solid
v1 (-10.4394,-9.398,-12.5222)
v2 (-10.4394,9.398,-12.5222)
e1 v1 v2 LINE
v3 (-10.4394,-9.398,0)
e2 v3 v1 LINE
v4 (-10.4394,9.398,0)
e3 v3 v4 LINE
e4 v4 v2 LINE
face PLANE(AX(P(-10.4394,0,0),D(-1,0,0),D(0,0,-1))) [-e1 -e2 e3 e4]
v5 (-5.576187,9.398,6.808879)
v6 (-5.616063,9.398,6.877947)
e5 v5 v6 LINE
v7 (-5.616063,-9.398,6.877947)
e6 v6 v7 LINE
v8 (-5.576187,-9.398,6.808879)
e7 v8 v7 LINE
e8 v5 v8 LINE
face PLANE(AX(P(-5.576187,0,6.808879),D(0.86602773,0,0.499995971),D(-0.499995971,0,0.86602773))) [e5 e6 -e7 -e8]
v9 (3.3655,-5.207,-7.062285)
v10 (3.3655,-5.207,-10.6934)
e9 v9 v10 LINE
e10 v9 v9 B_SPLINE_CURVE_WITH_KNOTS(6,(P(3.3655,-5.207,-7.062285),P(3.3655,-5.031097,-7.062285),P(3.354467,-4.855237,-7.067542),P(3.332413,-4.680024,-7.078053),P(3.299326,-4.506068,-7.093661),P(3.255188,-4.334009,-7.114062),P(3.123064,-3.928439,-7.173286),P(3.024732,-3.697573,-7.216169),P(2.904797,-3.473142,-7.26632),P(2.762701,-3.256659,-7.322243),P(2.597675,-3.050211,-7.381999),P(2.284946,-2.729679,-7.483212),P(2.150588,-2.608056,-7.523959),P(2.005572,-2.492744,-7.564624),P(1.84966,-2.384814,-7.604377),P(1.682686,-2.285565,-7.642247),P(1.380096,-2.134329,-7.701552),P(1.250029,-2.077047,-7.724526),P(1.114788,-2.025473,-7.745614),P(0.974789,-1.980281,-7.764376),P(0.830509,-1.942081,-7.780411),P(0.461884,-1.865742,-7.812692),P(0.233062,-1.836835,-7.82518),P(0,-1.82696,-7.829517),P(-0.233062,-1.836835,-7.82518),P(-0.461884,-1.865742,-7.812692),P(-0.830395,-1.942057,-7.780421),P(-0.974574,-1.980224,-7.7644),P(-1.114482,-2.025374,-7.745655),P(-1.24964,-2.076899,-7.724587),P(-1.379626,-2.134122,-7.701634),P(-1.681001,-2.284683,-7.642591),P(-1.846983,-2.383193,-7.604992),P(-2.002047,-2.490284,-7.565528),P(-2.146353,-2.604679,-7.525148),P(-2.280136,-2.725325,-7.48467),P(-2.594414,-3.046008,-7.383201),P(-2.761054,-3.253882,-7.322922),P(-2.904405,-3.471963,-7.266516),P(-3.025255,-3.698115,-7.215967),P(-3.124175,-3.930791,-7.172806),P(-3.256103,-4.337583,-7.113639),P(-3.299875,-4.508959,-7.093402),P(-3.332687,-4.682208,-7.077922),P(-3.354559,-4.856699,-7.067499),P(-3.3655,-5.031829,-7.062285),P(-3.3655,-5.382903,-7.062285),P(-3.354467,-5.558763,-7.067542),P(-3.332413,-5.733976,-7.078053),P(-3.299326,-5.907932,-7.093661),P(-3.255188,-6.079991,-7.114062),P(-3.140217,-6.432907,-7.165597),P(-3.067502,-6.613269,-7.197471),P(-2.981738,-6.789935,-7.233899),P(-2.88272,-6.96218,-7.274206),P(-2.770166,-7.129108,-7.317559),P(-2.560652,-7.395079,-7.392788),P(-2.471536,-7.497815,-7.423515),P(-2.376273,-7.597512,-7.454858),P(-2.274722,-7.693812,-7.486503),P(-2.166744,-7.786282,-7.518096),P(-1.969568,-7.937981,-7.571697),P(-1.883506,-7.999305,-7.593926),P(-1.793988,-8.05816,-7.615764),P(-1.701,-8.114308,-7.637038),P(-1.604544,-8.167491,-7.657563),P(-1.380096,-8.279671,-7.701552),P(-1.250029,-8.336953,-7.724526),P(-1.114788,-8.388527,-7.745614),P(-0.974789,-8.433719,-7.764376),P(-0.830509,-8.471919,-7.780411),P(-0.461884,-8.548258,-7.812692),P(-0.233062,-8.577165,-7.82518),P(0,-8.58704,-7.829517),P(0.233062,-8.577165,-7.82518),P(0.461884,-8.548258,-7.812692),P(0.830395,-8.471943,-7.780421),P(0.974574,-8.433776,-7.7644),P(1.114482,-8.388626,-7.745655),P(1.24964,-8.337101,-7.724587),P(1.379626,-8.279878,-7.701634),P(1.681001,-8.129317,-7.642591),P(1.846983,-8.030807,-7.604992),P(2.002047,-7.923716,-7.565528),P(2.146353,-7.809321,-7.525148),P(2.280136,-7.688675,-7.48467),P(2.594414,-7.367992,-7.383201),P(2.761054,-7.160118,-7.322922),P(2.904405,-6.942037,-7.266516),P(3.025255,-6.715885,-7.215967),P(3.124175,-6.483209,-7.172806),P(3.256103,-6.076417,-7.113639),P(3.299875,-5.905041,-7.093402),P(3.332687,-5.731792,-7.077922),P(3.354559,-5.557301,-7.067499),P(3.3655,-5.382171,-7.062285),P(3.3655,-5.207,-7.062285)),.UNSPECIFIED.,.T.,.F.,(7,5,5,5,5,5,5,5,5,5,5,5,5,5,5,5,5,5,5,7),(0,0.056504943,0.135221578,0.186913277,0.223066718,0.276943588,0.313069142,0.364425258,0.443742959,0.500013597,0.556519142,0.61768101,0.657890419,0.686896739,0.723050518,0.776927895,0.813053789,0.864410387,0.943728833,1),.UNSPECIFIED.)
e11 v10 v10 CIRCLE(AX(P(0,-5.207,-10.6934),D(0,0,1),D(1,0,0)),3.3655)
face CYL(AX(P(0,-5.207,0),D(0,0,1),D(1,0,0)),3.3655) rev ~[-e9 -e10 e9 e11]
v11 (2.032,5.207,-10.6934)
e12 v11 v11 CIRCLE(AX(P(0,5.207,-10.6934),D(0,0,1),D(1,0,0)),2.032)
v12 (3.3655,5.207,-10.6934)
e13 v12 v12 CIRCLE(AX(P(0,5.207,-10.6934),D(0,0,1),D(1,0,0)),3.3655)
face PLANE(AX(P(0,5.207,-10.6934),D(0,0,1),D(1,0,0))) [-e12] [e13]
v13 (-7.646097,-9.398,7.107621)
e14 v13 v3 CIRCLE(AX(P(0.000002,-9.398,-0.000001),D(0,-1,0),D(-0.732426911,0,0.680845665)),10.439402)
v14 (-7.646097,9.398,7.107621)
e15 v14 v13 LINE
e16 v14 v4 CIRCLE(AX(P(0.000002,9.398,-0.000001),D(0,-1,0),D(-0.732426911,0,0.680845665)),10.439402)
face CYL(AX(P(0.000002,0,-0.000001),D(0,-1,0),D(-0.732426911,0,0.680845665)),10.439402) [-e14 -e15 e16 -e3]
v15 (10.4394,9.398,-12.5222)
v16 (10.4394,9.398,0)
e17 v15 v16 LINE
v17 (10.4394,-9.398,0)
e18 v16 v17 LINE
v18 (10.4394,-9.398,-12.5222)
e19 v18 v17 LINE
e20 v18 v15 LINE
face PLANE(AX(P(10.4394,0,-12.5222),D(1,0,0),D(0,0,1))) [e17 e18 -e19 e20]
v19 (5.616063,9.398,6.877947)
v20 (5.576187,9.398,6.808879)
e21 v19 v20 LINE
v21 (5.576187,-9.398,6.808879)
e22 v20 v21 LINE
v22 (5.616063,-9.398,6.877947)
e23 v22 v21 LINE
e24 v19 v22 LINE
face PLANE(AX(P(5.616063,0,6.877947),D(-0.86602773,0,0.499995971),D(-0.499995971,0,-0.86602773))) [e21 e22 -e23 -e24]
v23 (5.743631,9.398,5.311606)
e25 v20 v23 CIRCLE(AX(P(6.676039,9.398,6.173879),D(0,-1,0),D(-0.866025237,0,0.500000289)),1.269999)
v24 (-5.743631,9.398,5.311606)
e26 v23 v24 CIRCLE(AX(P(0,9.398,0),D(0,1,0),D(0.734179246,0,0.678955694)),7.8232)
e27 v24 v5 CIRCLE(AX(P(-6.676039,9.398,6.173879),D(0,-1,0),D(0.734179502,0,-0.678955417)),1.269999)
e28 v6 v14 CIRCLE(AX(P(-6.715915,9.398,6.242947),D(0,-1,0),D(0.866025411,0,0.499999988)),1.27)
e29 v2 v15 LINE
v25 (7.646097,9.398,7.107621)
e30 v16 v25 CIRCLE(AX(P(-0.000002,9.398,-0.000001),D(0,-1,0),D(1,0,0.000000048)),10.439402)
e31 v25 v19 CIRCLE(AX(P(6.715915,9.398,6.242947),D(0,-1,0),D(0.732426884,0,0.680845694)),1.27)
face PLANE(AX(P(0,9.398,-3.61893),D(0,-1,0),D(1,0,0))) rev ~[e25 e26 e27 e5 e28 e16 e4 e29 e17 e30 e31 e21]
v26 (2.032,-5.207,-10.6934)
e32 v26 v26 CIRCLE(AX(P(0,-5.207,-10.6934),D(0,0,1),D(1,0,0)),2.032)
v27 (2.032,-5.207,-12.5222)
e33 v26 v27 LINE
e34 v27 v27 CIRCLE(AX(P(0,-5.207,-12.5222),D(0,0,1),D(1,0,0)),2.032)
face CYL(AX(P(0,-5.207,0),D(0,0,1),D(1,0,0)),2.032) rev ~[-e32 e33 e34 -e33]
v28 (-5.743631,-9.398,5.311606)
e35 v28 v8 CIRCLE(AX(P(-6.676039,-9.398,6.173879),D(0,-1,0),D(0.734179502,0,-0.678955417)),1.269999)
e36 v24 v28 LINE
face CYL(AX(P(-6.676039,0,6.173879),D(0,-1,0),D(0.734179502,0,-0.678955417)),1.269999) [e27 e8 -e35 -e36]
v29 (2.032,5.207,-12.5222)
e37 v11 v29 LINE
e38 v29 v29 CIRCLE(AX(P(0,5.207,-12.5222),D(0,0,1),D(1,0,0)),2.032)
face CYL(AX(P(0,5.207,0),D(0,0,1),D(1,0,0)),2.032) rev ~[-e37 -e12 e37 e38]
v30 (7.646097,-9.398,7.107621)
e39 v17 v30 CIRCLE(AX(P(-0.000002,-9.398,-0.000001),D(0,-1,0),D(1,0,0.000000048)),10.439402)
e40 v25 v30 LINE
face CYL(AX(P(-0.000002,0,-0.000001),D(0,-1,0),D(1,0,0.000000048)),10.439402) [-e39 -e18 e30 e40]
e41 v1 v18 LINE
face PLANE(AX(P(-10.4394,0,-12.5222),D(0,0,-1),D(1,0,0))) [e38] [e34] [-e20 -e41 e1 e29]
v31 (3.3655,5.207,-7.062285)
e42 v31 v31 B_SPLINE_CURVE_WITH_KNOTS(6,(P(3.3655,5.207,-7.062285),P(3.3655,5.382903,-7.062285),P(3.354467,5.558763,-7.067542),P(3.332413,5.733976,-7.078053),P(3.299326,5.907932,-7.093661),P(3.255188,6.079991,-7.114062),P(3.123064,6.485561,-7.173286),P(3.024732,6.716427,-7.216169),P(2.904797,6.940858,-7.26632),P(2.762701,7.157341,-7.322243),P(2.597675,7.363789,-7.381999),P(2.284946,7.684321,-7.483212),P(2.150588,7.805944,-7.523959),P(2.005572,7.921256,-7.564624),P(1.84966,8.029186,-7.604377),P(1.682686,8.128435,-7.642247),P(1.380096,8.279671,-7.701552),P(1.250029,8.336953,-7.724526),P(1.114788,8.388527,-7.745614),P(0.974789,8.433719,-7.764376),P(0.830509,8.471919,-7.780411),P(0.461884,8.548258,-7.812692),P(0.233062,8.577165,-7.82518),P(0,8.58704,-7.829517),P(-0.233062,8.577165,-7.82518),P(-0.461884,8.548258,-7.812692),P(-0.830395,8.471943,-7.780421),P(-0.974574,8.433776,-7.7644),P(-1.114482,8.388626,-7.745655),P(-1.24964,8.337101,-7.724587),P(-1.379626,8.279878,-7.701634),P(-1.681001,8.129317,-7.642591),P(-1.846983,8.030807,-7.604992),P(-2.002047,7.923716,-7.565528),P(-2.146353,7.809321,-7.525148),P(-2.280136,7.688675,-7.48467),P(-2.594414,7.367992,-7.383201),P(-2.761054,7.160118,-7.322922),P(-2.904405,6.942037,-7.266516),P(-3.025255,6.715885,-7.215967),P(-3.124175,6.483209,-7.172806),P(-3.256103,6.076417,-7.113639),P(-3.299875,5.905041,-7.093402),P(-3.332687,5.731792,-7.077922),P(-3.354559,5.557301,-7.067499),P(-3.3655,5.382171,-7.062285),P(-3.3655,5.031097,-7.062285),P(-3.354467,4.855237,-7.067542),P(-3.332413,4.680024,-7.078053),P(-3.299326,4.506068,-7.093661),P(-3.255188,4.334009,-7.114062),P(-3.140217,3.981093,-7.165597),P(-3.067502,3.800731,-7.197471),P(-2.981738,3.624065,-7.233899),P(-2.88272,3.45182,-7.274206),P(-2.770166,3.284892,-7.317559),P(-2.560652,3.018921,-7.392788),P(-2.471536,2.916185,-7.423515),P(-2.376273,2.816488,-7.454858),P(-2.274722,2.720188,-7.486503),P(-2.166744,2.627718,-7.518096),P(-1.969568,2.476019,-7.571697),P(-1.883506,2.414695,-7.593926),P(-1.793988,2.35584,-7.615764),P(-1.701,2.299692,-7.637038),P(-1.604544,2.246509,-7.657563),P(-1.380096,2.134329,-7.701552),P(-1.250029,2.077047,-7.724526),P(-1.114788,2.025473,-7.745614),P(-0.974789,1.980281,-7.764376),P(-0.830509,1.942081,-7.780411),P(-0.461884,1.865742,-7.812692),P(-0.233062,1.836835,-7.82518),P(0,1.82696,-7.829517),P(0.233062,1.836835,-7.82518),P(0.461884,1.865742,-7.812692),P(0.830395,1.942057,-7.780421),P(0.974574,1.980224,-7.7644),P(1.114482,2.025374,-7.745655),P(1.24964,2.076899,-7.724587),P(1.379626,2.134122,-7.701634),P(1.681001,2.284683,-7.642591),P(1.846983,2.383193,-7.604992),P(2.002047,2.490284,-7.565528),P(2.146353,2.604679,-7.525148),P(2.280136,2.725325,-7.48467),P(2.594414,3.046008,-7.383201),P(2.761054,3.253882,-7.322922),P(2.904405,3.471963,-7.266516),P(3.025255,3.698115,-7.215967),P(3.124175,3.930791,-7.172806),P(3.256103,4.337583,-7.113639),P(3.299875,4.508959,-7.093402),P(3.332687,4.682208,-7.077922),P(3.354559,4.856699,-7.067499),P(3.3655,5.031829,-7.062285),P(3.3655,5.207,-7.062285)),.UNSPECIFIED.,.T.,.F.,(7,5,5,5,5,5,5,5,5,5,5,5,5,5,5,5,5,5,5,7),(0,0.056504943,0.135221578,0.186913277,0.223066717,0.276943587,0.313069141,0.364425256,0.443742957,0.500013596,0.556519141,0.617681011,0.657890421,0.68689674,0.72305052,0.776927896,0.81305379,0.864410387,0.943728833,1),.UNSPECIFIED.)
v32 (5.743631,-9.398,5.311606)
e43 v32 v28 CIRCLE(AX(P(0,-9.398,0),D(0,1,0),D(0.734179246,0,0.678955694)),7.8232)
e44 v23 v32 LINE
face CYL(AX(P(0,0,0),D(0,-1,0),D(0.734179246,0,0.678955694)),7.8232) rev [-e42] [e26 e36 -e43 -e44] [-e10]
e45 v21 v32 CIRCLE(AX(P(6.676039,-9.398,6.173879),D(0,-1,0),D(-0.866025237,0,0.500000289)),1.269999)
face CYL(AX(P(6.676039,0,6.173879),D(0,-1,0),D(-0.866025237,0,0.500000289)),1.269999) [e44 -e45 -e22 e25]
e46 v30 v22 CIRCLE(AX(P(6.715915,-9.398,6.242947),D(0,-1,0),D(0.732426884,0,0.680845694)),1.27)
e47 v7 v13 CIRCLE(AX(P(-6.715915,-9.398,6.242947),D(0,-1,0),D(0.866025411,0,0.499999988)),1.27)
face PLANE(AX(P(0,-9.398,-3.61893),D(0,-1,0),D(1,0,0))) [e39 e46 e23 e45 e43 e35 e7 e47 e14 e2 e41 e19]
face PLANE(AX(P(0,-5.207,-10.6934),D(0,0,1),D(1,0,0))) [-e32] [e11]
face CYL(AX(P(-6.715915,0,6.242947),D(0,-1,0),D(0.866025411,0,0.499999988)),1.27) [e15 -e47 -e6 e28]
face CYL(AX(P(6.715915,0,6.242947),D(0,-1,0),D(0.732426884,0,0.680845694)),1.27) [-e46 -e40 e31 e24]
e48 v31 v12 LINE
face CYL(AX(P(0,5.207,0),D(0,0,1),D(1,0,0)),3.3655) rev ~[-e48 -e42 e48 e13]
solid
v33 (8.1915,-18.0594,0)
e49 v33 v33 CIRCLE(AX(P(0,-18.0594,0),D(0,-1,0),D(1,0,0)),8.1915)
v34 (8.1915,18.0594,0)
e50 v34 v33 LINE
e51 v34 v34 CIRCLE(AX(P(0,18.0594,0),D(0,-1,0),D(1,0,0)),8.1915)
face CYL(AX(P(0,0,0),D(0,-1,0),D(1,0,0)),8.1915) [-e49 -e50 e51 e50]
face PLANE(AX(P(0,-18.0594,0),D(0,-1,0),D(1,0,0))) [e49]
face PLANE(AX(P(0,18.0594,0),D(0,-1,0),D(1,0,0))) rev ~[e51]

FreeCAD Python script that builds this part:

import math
import FreeCAD as App
import Part
import Sketcher
from FreeCAD import Vector
Q = App.Units.Quantity

doc = App.newDocument("Part")
body = doc.addObject("PartDesign::Body", "Body")

sketch1 = body.newObject("Sketcher::SketchObject", "Sketch")
sketch1.AttachmentSupport = (doc.getObject("XZ_Plane"), [""])
sketch1.MapMode = "FlatFace"
sketch1.addGeometry([
    Part.LineSegment(Vector(10.4394, -12.5222, 0), Vector(10.4394, 0, 0)),
    Part.ArcOfCircle(Part.Circle(Vector(-0.000002, -0.000001, 0), Vector(0, 0, 1), 10.439402), math.radians(0.000003), math.radians(42.909762)),
    Part.ArcOfCircle(Part.Circle(Vector(6.715915, 6.242947, 0), Vector(0, 0, 1), 1.27), math.radians(42.909764), math.radians(150.000001)),
    Part.LineSegment(Vector(5.616063, 6.877947, 0), Vector(5.576187, 6.808879, 0)),
    Part.ArcOfCircle(Part.Circle(Vector(6.676039, 6.173879, 0), Vector(0, 0, 1), 1.269999), math.radians(149.999981), math.radians(222.76207)),
    Part.ArcOfCircle(Part.Circle(Vector(0, 0, 0), Vector(0, 0, 1), 7.8232), math.radians(137.237909), math.radians(402.762091)),
    Part.ArcOfCircle(Part.Circle(Vector(-6.676039, 6.173879, 0), Vector(0, 0, 1), 1.269999), math.radians(-42.76207), math.radians(30.000019)),
    Part.LineSegment(Vector(-5.576187, 6.808879, 0), Vector(-5.616063, 6.877947, 0)),
    Part.ArcOfCircle(Part.Circle(Vector(-6.715915, 6.242947, 0), Vector(0, 0, 1), 1.27), math.radians(29.999999), math.radians(137.090236)),
    Part.ArcOfCircle(Part.Circle(Vector(0.000002, -0.000001, 0), Vector(0, 0, 1), 10.439402), math.radians(137.090238), math.radians(179.999997)),
    Part.LineSegment(Vector(-10.4394, 0, 0), Vector(-10.4394, -12.5222, 0)),
    Part.LineSegment(Vector(-10.4394, -12.5222, 0), Vector(10.4394, -12.5222, 0)),
], False)
sketch1.addConstraint([
    Sketcher.Constraint("Tangent", 0, 2, 1, 1),
    Sketcher.Constraint("Tangent", 1, 2, 2, 1),
    Sketcher.Constraint("Coincident", 2, 2, 3, 1),
    Sketcher.Constraint("Coincident", 3, 2, 4, 1),
    Sketcher.Constraint("Tangent", 4, 2, 5, 2),
    Sketcher.Constraint("Tangent", 5, 1, 6, 1),
    Sketcher.Constraint("Coincident", 6, 2, 7, 1),
    Sketcher.Constraint("Coincident", 7, 2, 8, 1),
    Sketcher.Constraint("Tangent", 8, 2, 9, 1),
    Sketcher.Constraint("Tangent", 9, 2, 10, 1),
    Sketcher.Constraint("Coincident", 10, 2, 11, 1),
    Sketcher.Constraint("Coincident", 11, 2, 0, 1),
    Sketcher.Constraint("Vertical", 0),
    Sketcher.Constraint("Vertical", 10),
    Sketcher.Constraint("Horizontal", 11),
    Sketcher.Constraint("Coincident", 1, 3, -1, 1),
    Sketcher.Constraint("Coincident", 5, 3, -1, 1),
    Sketcher.Constraint("Coincident", 9, 3, -1, 1),
    Sketcher.Constraint("Equal", 2, 4),
    Sketcher.Constraint("Equal", 4, 6),
    Sketcher.Constraint("Equal", 6, 8),
    Sketcher.Constraint("Equal", 1, 9),
    Sketcher.Constraint("Symmetric", 3, 2, 6, 2, -2),
    Sketcher.Constraint("Symmetric", 2, 2, 7, 2, -2),
    Sketcher.Constraint("Radius", 2, Q("0.05 in")),
    Sketcher.Constraint("Radius", 1, Q("0.4110001 in")),
    Sketcher.Constraint("Radius", 5, Q("0.308 in")),
    Sketcher.Constraint("DistanceY", 0, 1, 0, 2, Q("0.493 in")),
    Sketcher.Constraint("DistanceY", 2, 3, 2, 2, Q("0.025 in")),
    Sketcher.Constraint("DistanceY", 4, 3, 3, 2, Q("0.025 in")),
    Sketcher.Constraint("DistanceX", -1, 1, 4, 3, Q("6.676039 mm")),
    Sketcher.Constraint("DistanceY", -1, 1, 1, 2, Q("7.107621 mm")),
])
pad1 = body.newObject("PartDesign::Pad", "Pad")
pad1.Profile = sketch1
pad1.Length = Q("0.74 in")
pad1.Midplane = True

sketch2 = body.newObject("Sketcher::SketchObject", "Sketch001")
sketch2.AttachmentSupport = (doc.getObject("XY_Plane"), [""])
sketch2.MapMode = "FlatFace"
sketch2.addGeometry([
    Part.Circle(Vector(0, 5.207, 0), Vector(0, 0, 1), 2.032),
    Part.Circle(Vector(0, -5.207, 0), Vector(0, 0, 1), 2.032),
], False)
sketch2.addConstraint([
    Sketcher.Constraint("Equal", 0, 1),
    Sketcher.Constraint("Symmetric", 0, 3, 1, 3, -1, 1),
    Sketcher.Constraint("PointOnObject", 0, 3, -2),
    Sketcher.Constraint("Diameter", 0, Q("0.16 in")),
    Sketcher.Constraint("DistanceY", 1, 3, 0, 3, Q("0.41 in")),
])
pocket1 = body.newObject("PartDesign::Pocket", "Pocket")
pocket1.Profile = sketch2
pocket1.Type = "ThroughAll"

sketch3 = body.newObject("Sketcher::SketchObject", "Sketch002")
sketch3.AttachmentSupport = (doc.getObject("XY_Plane"), [""])
sketch3.MapMode = "FlatFace"
sketch3.addGeometry([
    Part.Circle(Vector(0, 5.207, 0), Vector(0, 0, 1), 3.3655),
    Part.Circle(Vector(0, -5.207, 0), Vector(0, 0, 1), 3.3655),
], False)
sketch3.addConstraint([
    Sketcher.Constraint("Equal", 0, 1),
    Sketcher.Constraint("Symmetric", 0, 3, 1, 3, -1, 1),
    Sketcher.Constraint("PointOnObject", 0, 3, -2),
    Sketcher.Constraint("Diameter", 0, Q("0.265 in")),
    Sketcher.Constraint("DistanceY", 1, 3, 0, 3, Q("0.41 in")),
])
pocket2 = body.newObject("PartDesign::Pocket", "Pocket001")
pocket2.Profile = sketch3
pocket2.Length = Q("0.421 in")
body2 = doc.addObject("PartDesign::Body", "Body001")

sketch4 = body2.newObject("Sketcher::SketchObject", "Sketch003")
sketch4.AttachmentSupport = (doc.getObject("XZ_Plane001"), [""])
sketch4.MapMode = "FlatFace"
sketch4.addGeometry(Part.Circle(Vector(0, 0, 0), Vector(0, 0, 1), 8.1915), False)
sketch4.addConstraint([
    Sketcher.Constraint("Coincident", 0, 3, -1, 1),
    Sketcher.Constraint("Diameter", 0, Q("0.645 in")),
])
pad2 = body2.newObject("PartDesign::Pad", "Pad001")
pad2.Profile = sketch4
pad2.Length = Q("1.422 in")
pad2.Midplane = True
body3 = doc.addObject("PartDesign::Body", "Body002")

sketch5 = body3.newObject("Sketcher::SketchObject", "Sketch004")
sketch5.AttachmentSupport = (doc.getObject("XZ_Plane002"), [""])
sketch5.MapMode = "FlatFace"
sketch5.addGeometry([
    Part.LineSegment(Vector(-32.175, 50.356693, 0), Vector(-32.175, 15.006693, 0)),
    Part.LineSegment(Vector(-32.175, 15.006693, 0), Vector(3.175, 15.006693, 0)),
    Part.LineSegment(Vector(3.175, 15.006693, 0), Vector(3.175, 50.356693, 0)),
    Part.LineSegment(Vector(3.175, 50.356693, 0), Vector(-32.175, 50.356693, 0)),
    Part.Circle(Vector(-29, 18.181693, 0), Vector(0, 0, 1), 1.7145),
    Part.Circle(Vector(0, 18.181693, 0), Vector(0, 0, 1), 1.7145),
    Part.Circle(Vector(-29, 47.181693, 0), Vector(0, 0, 1), 1.7145),
    Part.Circle(Vector(0, 47.181693, 0), Vector(0, 0, 1), 1.7145),
], False)
sketch5.addConstraint([
    Sketcher.Constraint("Coincident", 0, 2, 1, 1),
    Sketcher.Constraint("Coincident", 1, 2, 2, 1),
    Sketcher.Constraint("Coincident", 2, 2, 3, 1),
    Sketcher.Constraint("Coincident", 3, 2, 0, 1),
    Sketcher.Constraint("Vertical", 0),
    Sketcher.Constraint("Horizontal", 1),
    Sketcher.Constraint("Vertical", 2),
    Sketcher.Constraint("Horizontal", 3),
    Sketcher.Constraint("Equal", 4, 5),
    Sketcher.Constraint("Equal", 5, 6),
    Sketcher.Constraint("Equal", 6, 7),
    Sketcher.Constraint("PointOnObject", 5, 3, -2),
    Sketcher.Constraint("PointOnObject", 7, 3, -2),
    Sketcher.Constraint("Horizontal", 4, 3, 5, 3),
    Sketcher.Constraint("Horizontal", 6, 3, 7, 3),
    Sketcher.Constraint("Vertical", 4, 3, 6, 3),
    Sketcher.Constraint("Equal", 3, 0),
    Sketcher.Constraint("Diameter", 4, Q("0.135 in")),
    Sketcher.Constraint("DistanceX", -1, 1, 1, 2, Q("0.125 in")),
    Sketcher.Constraint("DistanceX", 0, 2, 4, 3, Q("0.125 in")),
    Sketcher.Constraint("DistanceY", 0, 2, 4, 3, Q("0.125 in")),
    Sketcher.Constraint("DistanceY", 7, 3, 2, 2, Q("0.125 in")),
    Sketcher.Constraint("DistanceX", 1, 1, 1, 2, Q("35.35 mm")),
    Sketcher.Constraint("DistanceY", -1, 1, 4, 3, Q("18.181693 mm")),
])
pad3 = body3.newObject("PartDesign::Pad", "Pad002")
pad3.Profile = sketch5
pad3.Length = 0.6
body3.Visibility = False

doc.recompute()
